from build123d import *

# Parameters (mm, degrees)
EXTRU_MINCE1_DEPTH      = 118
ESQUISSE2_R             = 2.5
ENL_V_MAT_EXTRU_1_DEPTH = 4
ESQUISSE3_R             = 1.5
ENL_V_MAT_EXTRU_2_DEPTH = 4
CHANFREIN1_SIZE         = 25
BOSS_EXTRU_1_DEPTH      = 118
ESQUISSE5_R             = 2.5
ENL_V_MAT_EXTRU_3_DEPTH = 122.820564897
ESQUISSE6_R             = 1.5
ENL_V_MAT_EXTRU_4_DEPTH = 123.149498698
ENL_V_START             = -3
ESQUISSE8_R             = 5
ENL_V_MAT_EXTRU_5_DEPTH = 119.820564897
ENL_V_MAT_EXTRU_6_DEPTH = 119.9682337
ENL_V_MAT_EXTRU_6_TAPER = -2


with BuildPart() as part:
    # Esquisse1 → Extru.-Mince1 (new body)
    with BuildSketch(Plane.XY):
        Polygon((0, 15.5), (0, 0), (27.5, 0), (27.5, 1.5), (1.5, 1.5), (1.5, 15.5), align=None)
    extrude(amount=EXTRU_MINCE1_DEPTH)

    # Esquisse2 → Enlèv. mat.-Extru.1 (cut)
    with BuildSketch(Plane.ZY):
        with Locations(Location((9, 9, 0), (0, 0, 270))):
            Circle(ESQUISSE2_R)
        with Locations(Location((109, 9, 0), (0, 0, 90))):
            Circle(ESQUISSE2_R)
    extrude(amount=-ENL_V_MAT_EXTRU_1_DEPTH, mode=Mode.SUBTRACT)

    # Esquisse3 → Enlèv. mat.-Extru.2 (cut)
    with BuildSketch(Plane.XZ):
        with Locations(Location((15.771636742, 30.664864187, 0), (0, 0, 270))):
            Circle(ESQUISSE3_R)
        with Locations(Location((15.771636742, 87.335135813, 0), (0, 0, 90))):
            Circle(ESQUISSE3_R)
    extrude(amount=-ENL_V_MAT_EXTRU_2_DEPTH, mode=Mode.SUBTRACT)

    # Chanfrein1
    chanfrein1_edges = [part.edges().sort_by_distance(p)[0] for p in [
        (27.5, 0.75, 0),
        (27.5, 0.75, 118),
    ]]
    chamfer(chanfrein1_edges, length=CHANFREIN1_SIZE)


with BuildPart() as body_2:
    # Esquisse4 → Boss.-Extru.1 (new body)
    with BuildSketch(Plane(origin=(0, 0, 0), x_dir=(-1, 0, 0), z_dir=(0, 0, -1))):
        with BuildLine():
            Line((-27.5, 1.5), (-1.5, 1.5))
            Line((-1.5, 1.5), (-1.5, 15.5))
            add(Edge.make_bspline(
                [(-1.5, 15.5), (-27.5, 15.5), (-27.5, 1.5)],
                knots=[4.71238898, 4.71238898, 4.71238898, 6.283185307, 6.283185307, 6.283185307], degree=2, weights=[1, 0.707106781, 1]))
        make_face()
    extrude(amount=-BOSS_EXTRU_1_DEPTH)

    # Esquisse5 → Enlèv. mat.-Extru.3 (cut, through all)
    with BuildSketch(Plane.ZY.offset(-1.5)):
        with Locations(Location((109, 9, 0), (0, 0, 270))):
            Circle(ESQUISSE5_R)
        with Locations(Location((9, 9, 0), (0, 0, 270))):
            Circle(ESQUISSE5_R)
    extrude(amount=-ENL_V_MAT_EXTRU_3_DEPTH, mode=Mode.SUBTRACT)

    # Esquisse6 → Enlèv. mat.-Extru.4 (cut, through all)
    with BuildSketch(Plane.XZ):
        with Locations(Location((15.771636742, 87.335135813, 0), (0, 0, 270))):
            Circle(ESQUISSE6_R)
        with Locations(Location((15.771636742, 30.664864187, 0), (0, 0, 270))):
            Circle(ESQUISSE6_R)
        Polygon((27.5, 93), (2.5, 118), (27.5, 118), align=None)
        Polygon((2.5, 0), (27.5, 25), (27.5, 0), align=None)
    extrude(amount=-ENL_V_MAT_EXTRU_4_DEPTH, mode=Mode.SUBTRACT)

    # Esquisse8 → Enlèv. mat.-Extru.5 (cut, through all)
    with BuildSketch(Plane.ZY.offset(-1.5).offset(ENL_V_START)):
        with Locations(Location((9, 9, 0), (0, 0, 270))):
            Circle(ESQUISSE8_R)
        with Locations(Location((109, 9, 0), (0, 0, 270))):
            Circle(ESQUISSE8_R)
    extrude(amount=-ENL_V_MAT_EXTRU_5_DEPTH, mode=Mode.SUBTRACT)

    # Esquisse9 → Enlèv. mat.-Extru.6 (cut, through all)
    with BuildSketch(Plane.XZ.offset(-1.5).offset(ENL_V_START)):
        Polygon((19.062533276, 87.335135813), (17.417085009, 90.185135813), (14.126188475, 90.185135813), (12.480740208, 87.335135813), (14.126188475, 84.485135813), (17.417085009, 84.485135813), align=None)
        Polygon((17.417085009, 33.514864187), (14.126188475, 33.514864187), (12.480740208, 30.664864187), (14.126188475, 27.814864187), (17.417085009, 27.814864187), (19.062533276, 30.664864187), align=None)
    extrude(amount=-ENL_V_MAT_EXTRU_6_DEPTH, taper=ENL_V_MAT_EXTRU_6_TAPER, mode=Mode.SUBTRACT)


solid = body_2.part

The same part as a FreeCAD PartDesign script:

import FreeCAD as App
import Part
import Sketcher
Q = App.Units.Quantity


def edges_at(feature, points):
    """Names of the edges that pass closest to the given points."""
    edges = feature.Shape.Edges
    near = lambda p: min(range(len(edges)), key=lambda i: edges[i].distToShape(Part.Vertex(*p))[0])
    return sorted({f"Edge{near(p) + 1}" for p in points})


def add_polygon(sketch, points):
    """Adds a closed chain of lines whose ends are joined by coincident constraints."""
    first, n = sketch.GeometryCount, len(points)
    for a, b in zip(points, points[1:] + points[:1]):
        sketch.addGeometry(Part.LineSegment(App.Vector(*a, 0), App.Vector(*b, 0)), False)
    for i in range(n):
        sketch.addConstraint(Sketcher.Constraint("Coincident", first + i, 2, first + (i + 1) % n, 1))

doc = App.newDocument("Part")
body = doc.addObject("PartDesign::Body", "Body")

# Sketch on XY plane
sketch1 = body.newObject("Sketcher::SketchObject", "Sketch")
sketch1.AttachmentSupport = (doc.getObject("XY_Plane"), [""])
sketch1.MapMode = "FlatFace"
add_polygon(sketch1, [(0, 15.5), (0, 0), (27.5, 0), (27.5, 1.5), (1.5, 1.5), (1.5, 15.5)])  # lines 0-5
sketch1.addConstraint(Sketcher.Constraint("Vertical", 0))
sketch1.addConstraint(Sketcher.Constraint("Horizontal", 1))
sketch1.addConstraint(Sketcher.Constraint("Vertical", 2))
sketch1.addConstraint(Sketcher.Constraint("Horizontal", 3))
sketch1.addConstraint(Sketcher.Constraint("Vertical", 4))
sketch1.addConstraint(Sketcher.Constraint("Horizontal", 5))
sketch1.addConstraint(Sketcher.Constraint("Coincident", 0, 2, -1, 1))
sketch1.addConstraint(Sketcher.Constraint("Equal", 5, 2))
sketch1.addConstraint(Sketcher.Constraint("DistanceX", 3, 2, 3, 1, 26.0))
sketch1.addConstraint(Sketcher.Constraint("DistanceY", 4, 1, 4, 2, 14.0))
sketch1.addConstraint(Sketcher.Constraint("DistanceX", 1, 1, 1, 2, 27.5))
pad1 = body.newObject("PartDesign::Pad", "Pad")
pad1.Profile = sketch1
pad1.Length = 118

# Sketch on YZ plane
sketch2 = body.newObject("Sketcher::SketchObject", "Sketch001")
sketch2.AttachmentSupport = (doc.getObject("YZ_Plane"), [""])
sketch2.MapMode = "FlatFace"
sketch2.addGeometry(Part.Circle(App.Vector(9, 9, 0), App.Vector(0, 0, 1), 2.5), False)
sketch2.addGeometry(Part.Circle(App.Vector(9, 109, 0), App.Vector(0, 0, 1), 2.5), False)
sketch2.addConstraint(Sketcher.Constraint("Equal", 0, 1))
sketch2.addConstraint(Sketcher.Constraint("Vertical", 0, 3, 1, 3))
sketch2.addConstraint(Sketcher.Constraint("Diameter", 0, 5.0))
sketch2.addConstraint(Sketcher.Constraint("DistanceX", -1, 1, 0, 3, 9.0))
sketch2.addConstraint(Sketcher.Constraint("DistanceY", -1, 1, 0, 3, 9.0))
sketch2.addConstraint(Sketcher.Constraint("DistanceY", -1, 1, 1, 3, 109.0))
pocket1 = body.newObject("PartDesign::Pocket", "Pocket")
pocket1.Profile = sketch2
pocket1.Length = 4
pocket1.Reversed = True

# Sketch on XZ plane
sketch3 = body.newObject("Sketcher::SketchObject", "Sketch002")
sketch3.AttachmentSupport = (doc.getObject("XZ_Plane"), [""])
sketch3.MapMode = "FlatFace"
sketch3.addGeometry(Part.Circle(App.Vector(15.8, 30.7, 0), App.Vector(0, 0, 1), 1.5), False)
sketch3.addGeometry(Part.Circle(App.Vector(15.8, 87.3, 0), App.Vector(0, 0, 1), 1.5), False)
sketch3.addConstraint(Sketcher.Constraint("Equal", 0, 1))
sketch3.addConstraint(Sketcher.Constraint("Vertical", 0, 3, 1, 3))
sketch3.addConstraint(Sketcher.Constraint("Diameter", 0, 3.0))
sketch3.addConstraint(Sketcher.Constraint("DistanceY", 0, 3, 1, 3, 56.670272))
sketch3.addConstraint(Sketcher.Constraint("DistanceX", -1, 1, 0, 3, 15.771637))
sketch3.addConstraint(Sketcher.Constraint("DistanceY", -1, 1, 0, 3, 30.664864))
pocket2 = body.newObject("PartDesign::Pocket", "Pocket001")
pocket2.Profile = sketch3
pocket2.Length = 4
doc.recompute()

chamfer = body.newObject("PartDesign::Chamfer", "Chamfer")
chamfer.Base = (pocket2, edges_at(pocket2, [(27.5, 0.75, 0), (27.5, 0.75, 118)]))
chamfer.Size = 25
body2 = doc.addObject("PartDesign::Body", "Body001")

# Sketch on XY plane
sketch4 = body2.newObject("Sketcher::SketchObject", "Sketch003")
sketch4.AttachmentSupport = (doc.getObject("XY_Plane001"), [""])
sketch4.MapMode = "FlatFace"
sketch4.addGeometry(Part.LineSegment(App.Vector(27.5, 1.5, 0), App.Vector(1.5, 1.5, 0)), False)
sketch4.addGeometry(Part.LineSegment(App.Vector(1.5, 1.5, 0), App.Vector(1.5, 15.5, 0)), False)
sketch4.addGeometry(Part.BSplineCurve([App.Vector(1.5, 15.5, 0), App.Vector(27.5, 15.5, 0), App.Vector(27.5, 1.5, 0)], [3, 3], [4.71238898, 6.283185307], False, 2, [1, 0.707106781, 1], False), False)
sketch4.addConstraint(Sketcher.Constraint("Block", 2))
sketch4.addConstraint(Sketcher.Constraint("Coincident", 0, 2, 1, 1))
sketch4.addConstraint(Sketcher.Constraint("Coincident", 1, 2, 2, 1))
sketch4.addConstraint(Sketcher.Constraint("Coincident", 2, 2, 0, 1))
sketch4.addConstraint(Sketcher.Constraint("Horizontal", 0))
sketch4.addConstraint(Sketcher.Constraint("Vertical", 1))
pad2 = body2.newObject("PartDesign::Pad", "Pad001")
pad2.Profile = sketch4
pad2.Length = 118

# Sketch on YZ plane
sketch5 = body2.newObject("Sketcher::SketchObject", "Sketch004")
sketch5.AttachmentSupport = (doc.getObject("YZ_Plane001"), [""])
sketch5.MapMode = "FlatFace"
sketch5.AttachmentOffset = App.Placement(App.Vector(0, 0, 1.5), App.Rotation())
sketch5.addGeometry(Part.Circle(App.Vector(9, 109, 0), App.Vector(0, 0, 1), 2.5), False)
sketch5.addGeometry(Part.Circle(App.Vector(9, 9, 0), App.Vector(0, 0, 1), 2.5), False)
sketch5.addConstraint(Sketcher.Constraint("Equal", 0, 1))
sketch5.addConstraint(Sketcher.Constraint("Vertical", 0, 3, 1, 3))
sketch5.addConstraint(Sketcher.Constraint("Diameter", 0, 5.0))
sketch5.addConstraint(Sketcher.Constraint("DistanceX", -1, 1, 0, 3, 9.0))
sketch5.addConstraint(Sketcher.Constraint("DistanceY", -1, 1, 0, 3, 109.0))
sketch5.addConstraint(Sketcher.Constraint("DistanceY", -1, 1, 1, 3, 9.0))
pocket3 = body2.newObject("PartDesign::Pocket", "Pocket002")
pocket3.Profile = sketch5
pocket3.Type = "ThroughAll"
pocket3.Reversed = True

# Sketch on XZ plane
sketch6 = body2.newObject("Sketcher::SketchObject", "Sketch005")
sketch6.AttachmentSupport = (doc.getObject("XZ_Plane001"), [""])
sketch6.MapMode = "FlatFace"
sketch6.addGeometry(Part.Circle(App.Vector(15.8, 87.3, 0), App.Vector(0, 0, 1), 1.5), False)  # 0
sketch6.addGeometry(Part.Circle(App.Vector(15.8, 30.7, 0), App.Vector(0, 0, 1), 1.5), False)  # 1
add_polygon(sketch6, [(2.5, 118), (27.5, 93), (27.5, 118)])  # lines 2-4
add_polygon(sketch6, [(27.5, 25), (2.5, 0), (27.5, 0)])  # lines 5-7
sketch6.addConstraint(Sketcher.Constraint("Vertical", 3))
sketch6.addConstraint(Sketcher.Constraint("Horizontal", 4))
sketch6.addConstraint(Sketcher.Constraint("Horizontal", 6))
sketch6.addConstraint(Sketcher.Constraint("Vertical", 7))
sketch6.addConstraint(Sketcher.Constraint("Equal", 0, 1))
sketch6.addConstraint(Sketcher.Constraint("PointOnObject", 5, 2, -1))
sketch6.addConstraint(Sketcher.Constraint("Perpendicular", 2, 5))
sketch6.addConstraint(Sketcher.Constraint("Vertical", 0, 3, 1, 3))
sketch6.addConstraint(Sketcher.Constraint("Vertical", 4, 2, 5, 2))
sketch6.addConstraint(Sketcher.Constraint("Vertical", 3, 2, 6, 2))
sketch6.addConstraint(Sketcher.Constraint("Equal", 6, 3))
sketch6.addConstraint(Sketcher.Constraint("Diameter", 0, 3.0))
sketch6.addConstraint(Sketcher.Constraint("DistanceX", 4, 2, 4, 1, 25.0))
sketch6.addConstraint(Sketcher.Constraint("DistanceY", -1, 1, 2, 2, 93.0))
sketch6.addConstraint(Sketcher.Constraint("DistanceX", -1, 1, 2, 2, 27.5))
sketch6.addConstraint(Sketcher.Constraint("DistanceY", 1, 3, 0, 3, 56.670272))
sketch6.addConstraint(Sketcher.Constraint("DistanceX", -1, 1, 0, 3, 15.771637))
sketch6.addConstraint(Sketcher.Constraint("DistanceY", -1, 1, 0, 3, 87.335136))
pocket4 = body2.newObject("PartDesign::Pocket", "Pocket003")
pocket4.Profile = sketch6
pocket4.Type = "ThroughAll"

# Sketch on YZ plane
sketch7 = body2.newObject("Sketcher::SketchObject", "Sketch006")
sketch7.AttachmentSupport = (doc.getObject("YZ_Plane001"), [""])
sketch7.MapMode = "FlatFace"
sketch7.AttachmentOffset = App.Placement(App.Vector(0, 0, 4.5), App.Rotation())
sketch7.addGeometry(Part.Circle(App.Vector(9, 9, 0), App.Vector(0, 0, 1), 5), False)
sketch7.addGeometry(Part.Circle(App.Vector(9, 109, 0), App.Vector(0, 0, 1), 5), False)
sketch7.addConstraint(Sketcher.Constraint("Equal", 0, 1))
sketch7.addConstraint(Sketcher.Constraint("Vertical", 0, 3, 1, 3))
sketch7.addConstraint(Sketcher.Constraint("Diameter", 0, 10.0))
sketch7.addConstraint(Sketcher.Constraint("DistanceX", -1, 1, 0, 3, 9.0))
sketch7.addConstraint(Sketcher.Constraint("DistanceY", -1, 1, 0, 3, 9.0))
sketch7.addConstraint(Sketcher.Constraint("DistanceY", -1, 1, 1, 3, 109.0))
pocket5 = body2.newObject("PartDesign::Pocket", "Pocket004")
pocket5.Profile = sketch7
pocket5.Type = "ThroughAll"
pocket5.Reversed = True

# Sketch on XZ plane
sketch8 = body2.newObject("Sketcher::SketchObject", "Sketch007")
sketch8.AttachmentSupport = (doc.getObject("XZ_Plane001"), [""])
sketch8.MapMode = "FlatFace"
sketch8.AttachmentOffset = App.Placement(App.Vector(0, 0, -4.5), App.Rotation())
add_polygon(sketch8, [(19.1, 87.3), (17.4, 90.2), (14.1, 90.2), (12.5, 87.3), (14.1, 84.5), (17.4, 84.5)])  # lines 0-5
add_polygon(sketch8, [(17.4, 33.5), (14.1, 33.5), (12.5, 30.7), (14.1, 27.8), (17.4, 27.8), (19.1, 30.7)])  # lines 6-11
sketch8.addConstraint(Sketcher.Constraint("Horizontal", 1))
sketch8.addConstraint(Sketcher.Constraint("Horizontal", 4))
sketch8.addConstraint(Sketcher.Constraint("Horizontal", 6))
sketch8.addConstraint(Sketcher.Constraint("Horizontal", 9))
sketch8.addConstraint(Sketcher.Constraint("Parallel", 0, 3))
sketch8.addConstraint(Sketcher.Constraint("Parallel", 2, 5))
sketch8.addConstraint(Sketcher.Constraint("Parallel", 5, 7))
sketch8.addConstraint(Sketcher.Constraint("Parallel", 3, 8))
sketch8.addConstraint(Sketcher.Constraint("Parallel", 7, 10))
sketch8.addConstraint(Sketcher.Constraint("Parallel", 8, 11))
sketch8.addConstraint(Sketcher.Constraint("Horizontal", 2, 2, 5, 2))
sketch8.addConstraint(Sketcher.Constraint("Horizontal", 7, 2, 10, 2))
sketch8.addConstraint(Sketcher.Constraint("Vertical", 1, 2, 3, 2))
sketch8.addConstraint(Sketcher.Constraint("Vertical", 0, 2, 4, 2))
sketch8.addConstraint(Sketcher.Constraint("Vertical", 3, 2, 6, 2))
sketch8.addConstraint(Sketcher.Constraint("Vertical", 2, 2, 7, 2))
sketch8.addConstraint(Sketcher.Constraint("Vertical", 6, 2, 8, 2))
sketch8.addConstraint(Sketcher.Constraint("Vertical", 4, 2, 9, 2))
sketch8.addConstraint(Sketcher.Constraint("Angle", 0, Q("120 deg")))
sketch8.addConstraint(Sketcher.Constraint("DistanceY", 3, 2, 1, 2, 5.7))
sketch8.addConstraint(Sketcher.Constraint("DistanceX", 1, 2, 1, 1, 3.290897))
sketch8.addConstraint(Sketcher.Constraint("DistanceX", -1, 1, 1, 2, 14.126188))
sketch8.addConstraint(Sketcher.Constraint("DistanceY", 6, 2, 3, 2, 50.970272))
sketch8.addConstraint(Sketcher.Constraint("DistanceY", -1, 1, 0, 2, 90.185136))
pocket6 = body2.newObject("PartDesign::Pocket", "Pocket005")
pocket6.Profile = sketch8
pocket6.Length = 119.968234
pocket6.TaperAngle = 2
body.Visibility = False

doc.recompute()
